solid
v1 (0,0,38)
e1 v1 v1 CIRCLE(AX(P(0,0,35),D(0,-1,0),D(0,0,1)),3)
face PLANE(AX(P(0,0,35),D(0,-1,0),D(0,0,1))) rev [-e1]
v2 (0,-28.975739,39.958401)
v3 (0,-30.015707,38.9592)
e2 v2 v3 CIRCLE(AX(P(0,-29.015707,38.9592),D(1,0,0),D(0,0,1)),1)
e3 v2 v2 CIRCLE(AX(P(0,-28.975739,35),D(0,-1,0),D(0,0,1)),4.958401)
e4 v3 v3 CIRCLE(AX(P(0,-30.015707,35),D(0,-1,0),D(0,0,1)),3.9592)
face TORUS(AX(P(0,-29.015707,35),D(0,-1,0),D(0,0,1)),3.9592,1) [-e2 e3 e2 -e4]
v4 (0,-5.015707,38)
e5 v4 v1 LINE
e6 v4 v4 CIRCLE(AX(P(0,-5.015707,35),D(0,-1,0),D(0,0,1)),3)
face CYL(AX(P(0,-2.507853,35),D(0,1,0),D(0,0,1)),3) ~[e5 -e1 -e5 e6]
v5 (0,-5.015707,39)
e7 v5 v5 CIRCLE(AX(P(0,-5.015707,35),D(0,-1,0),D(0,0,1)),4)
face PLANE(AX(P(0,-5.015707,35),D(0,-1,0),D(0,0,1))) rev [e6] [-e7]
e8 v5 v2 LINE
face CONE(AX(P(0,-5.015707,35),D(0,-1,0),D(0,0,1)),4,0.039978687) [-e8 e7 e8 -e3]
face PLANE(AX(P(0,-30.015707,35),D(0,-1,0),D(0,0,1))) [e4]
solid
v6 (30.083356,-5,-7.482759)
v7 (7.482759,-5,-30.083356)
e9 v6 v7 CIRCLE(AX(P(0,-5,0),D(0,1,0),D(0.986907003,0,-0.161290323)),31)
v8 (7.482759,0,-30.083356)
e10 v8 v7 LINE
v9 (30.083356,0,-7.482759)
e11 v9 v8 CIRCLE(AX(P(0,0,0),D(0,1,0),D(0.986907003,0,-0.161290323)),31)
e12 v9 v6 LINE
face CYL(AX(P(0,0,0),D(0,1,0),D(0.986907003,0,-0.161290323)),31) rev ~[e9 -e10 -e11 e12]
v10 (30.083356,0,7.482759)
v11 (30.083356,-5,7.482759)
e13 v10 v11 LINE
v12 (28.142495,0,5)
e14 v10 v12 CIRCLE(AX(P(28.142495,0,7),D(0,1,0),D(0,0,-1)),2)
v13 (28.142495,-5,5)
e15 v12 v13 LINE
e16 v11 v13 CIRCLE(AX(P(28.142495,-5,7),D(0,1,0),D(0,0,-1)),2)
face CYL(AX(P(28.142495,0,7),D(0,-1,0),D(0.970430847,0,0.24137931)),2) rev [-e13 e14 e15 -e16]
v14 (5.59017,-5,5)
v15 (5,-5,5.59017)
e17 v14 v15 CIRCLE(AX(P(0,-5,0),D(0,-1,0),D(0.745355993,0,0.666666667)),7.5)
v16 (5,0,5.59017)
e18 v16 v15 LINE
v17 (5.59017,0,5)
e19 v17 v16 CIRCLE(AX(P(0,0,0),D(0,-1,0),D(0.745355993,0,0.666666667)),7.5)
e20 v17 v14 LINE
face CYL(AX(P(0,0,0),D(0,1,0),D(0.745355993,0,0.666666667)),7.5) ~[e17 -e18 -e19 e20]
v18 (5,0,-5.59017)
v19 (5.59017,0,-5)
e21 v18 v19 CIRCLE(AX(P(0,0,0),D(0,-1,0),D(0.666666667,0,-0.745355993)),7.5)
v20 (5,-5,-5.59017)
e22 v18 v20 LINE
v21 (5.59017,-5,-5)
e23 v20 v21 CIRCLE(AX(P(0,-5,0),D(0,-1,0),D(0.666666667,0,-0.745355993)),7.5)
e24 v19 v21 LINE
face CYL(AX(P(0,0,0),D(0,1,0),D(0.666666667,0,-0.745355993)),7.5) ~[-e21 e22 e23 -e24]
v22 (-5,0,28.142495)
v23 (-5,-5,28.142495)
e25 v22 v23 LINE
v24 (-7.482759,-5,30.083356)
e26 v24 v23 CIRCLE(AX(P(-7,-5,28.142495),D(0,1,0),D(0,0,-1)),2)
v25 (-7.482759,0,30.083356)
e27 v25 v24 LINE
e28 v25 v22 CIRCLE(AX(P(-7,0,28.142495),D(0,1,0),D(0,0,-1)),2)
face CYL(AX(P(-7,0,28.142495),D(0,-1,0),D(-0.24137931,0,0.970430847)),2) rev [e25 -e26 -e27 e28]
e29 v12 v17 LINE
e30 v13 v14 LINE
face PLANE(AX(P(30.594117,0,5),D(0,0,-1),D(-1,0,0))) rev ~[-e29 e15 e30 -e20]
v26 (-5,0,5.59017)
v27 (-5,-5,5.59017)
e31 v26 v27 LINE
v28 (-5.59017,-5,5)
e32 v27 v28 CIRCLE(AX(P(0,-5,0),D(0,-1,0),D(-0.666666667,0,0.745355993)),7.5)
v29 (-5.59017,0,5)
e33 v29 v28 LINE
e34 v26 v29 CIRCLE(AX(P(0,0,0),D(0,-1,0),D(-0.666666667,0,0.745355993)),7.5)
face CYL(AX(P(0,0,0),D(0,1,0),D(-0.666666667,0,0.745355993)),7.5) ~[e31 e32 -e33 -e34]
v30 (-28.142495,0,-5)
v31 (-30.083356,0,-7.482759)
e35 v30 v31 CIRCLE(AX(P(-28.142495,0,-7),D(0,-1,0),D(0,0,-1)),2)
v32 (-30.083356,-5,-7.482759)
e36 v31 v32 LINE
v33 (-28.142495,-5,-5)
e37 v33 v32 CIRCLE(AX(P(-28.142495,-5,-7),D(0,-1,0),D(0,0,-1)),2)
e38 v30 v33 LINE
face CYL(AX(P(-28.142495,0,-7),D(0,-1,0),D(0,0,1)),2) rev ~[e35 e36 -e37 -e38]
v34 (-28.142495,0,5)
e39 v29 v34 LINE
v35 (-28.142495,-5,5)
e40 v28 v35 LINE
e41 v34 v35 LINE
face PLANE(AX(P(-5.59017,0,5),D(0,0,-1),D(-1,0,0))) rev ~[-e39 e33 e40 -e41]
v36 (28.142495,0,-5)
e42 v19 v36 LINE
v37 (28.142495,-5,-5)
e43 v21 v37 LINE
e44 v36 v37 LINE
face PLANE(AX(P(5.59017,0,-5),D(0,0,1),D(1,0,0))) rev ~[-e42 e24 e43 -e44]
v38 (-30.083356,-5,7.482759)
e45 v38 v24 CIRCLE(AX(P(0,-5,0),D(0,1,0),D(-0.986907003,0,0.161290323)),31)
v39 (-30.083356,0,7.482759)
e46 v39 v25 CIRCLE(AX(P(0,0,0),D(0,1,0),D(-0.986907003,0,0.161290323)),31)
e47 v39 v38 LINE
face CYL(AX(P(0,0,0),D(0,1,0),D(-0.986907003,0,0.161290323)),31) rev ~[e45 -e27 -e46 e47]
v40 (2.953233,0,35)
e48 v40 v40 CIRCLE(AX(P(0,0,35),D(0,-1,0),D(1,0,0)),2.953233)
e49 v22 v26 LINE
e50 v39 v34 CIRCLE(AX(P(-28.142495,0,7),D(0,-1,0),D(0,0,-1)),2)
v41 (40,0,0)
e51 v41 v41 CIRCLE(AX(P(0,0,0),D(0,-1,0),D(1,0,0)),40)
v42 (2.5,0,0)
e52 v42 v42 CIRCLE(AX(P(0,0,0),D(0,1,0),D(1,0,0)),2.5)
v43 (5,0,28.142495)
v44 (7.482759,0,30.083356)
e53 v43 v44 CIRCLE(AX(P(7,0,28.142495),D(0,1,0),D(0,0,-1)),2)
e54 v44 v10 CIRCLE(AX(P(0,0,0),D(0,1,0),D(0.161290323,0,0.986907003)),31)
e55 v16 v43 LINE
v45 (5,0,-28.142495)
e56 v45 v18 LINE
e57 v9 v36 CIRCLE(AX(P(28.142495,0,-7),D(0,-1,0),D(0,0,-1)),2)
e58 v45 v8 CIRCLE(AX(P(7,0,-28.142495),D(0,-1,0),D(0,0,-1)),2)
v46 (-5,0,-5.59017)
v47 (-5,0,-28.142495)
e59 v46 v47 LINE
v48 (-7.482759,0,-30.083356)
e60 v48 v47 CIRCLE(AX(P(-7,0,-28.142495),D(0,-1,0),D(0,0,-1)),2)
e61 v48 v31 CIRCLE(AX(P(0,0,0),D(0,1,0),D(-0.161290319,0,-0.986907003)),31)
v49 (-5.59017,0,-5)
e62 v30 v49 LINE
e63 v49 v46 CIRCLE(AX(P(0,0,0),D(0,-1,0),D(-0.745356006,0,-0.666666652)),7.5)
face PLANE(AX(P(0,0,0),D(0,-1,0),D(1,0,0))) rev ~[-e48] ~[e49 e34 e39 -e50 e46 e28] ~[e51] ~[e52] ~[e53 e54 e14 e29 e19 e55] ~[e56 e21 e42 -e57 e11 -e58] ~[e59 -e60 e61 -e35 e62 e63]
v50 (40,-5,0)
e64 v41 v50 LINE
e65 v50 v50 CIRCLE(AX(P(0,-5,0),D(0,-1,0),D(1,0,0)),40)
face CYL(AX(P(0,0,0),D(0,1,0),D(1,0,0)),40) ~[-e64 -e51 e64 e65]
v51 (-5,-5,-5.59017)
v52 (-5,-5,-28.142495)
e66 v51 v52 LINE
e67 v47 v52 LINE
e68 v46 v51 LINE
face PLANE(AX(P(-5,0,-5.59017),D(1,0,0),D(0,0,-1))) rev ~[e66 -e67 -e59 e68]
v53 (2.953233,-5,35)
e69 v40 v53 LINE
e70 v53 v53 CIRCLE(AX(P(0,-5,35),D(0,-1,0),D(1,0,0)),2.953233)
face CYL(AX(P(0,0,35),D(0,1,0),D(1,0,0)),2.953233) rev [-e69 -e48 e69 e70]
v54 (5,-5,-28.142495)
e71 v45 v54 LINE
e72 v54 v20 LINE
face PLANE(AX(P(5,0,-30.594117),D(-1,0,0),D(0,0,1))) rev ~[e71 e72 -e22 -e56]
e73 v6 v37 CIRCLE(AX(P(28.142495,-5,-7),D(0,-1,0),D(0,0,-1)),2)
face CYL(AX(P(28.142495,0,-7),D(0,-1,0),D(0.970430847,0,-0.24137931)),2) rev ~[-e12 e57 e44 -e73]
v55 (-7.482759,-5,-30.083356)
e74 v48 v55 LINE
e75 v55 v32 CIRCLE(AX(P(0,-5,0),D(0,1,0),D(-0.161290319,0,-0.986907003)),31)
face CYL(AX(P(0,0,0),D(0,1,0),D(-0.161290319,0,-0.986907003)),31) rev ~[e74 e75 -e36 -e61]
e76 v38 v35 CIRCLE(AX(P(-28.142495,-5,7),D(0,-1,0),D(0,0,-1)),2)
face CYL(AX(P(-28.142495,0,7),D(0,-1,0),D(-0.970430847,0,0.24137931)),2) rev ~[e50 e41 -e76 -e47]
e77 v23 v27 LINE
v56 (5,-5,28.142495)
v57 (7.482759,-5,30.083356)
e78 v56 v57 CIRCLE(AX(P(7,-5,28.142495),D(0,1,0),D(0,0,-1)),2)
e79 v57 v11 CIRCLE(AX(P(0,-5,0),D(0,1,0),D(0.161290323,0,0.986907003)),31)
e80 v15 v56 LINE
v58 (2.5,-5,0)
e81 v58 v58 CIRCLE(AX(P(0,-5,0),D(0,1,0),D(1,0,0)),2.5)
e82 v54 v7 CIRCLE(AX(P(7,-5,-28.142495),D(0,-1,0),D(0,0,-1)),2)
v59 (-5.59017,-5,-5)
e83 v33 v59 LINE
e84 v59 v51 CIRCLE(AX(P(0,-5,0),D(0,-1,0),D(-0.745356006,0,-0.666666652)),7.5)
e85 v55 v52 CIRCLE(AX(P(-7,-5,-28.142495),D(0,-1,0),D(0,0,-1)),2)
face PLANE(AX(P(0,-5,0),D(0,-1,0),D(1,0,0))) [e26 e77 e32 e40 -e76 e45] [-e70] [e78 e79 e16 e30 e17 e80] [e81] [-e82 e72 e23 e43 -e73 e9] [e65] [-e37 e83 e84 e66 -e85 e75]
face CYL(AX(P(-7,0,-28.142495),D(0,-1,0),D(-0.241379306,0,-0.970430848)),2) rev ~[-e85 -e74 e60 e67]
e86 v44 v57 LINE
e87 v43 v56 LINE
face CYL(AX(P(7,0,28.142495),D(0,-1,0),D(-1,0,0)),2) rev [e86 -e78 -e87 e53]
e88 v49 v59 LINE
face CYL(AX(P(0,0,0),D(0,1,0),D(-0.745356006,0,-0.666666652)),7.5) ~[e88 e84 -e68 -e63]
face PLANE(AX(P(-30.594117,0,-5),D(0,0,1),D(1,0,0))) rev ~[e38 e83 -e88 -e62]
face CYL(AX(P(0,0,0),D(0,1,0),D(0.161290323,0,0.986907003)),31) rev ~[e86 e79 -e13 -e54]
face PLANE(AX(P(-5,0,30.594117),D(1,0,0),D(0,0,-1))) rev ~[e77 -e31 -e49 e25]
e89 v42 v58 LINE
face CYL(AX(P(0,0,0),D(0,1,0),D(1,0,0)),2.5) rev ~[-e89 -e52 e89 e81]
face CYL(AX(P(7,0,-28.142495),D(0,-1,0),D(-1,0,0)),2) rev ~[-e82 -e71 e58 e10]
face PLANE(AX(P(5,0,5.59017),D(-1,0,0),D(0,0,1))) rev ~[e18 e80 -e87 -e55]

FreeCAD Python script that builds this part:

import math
import FreeCAD as App
import Part
import Sketcher
Q = App.Units.Quantity


def edges_at(feature, points):
    """Names of the edges that pass closest to the given points."""
    edges = feature.Shape.Edges
    near = lambda p: min(range(len(edges)), key=lambda i: edges[i].distToShape(Part.Vertex(*p))[0])
    return sorted({f"Edge{near(p) + 1}" for p in points})


def add_polygon(sketch, points):
    """Adds a closed chain of lines whose ends are joined by coincident constraints."""
    first, n = sketch.GeometryCount, len(points)
    for a, b in zip(points, points[1:] + points[:1]):
        sketch.addGeometry(Part.LineSegment(App.Vector(*a, 0), App.Vector(*b, 0)), False)
    for i in range(n):
        sketch.addConstraint(Sketcher.Constraint("Coincident", first + i, 2, first + (i + 1) % n, 1))

doc = App.newDocument("Part")
body = doc.addObject("PartDesign::Body", "Body")

sketch1 = body.newObject("Sketcher::SketchObject", "Sketch")
sketch1.AttachmentSupport = (doc.getObject("YZ_Plane"), [""])
sketch1.MapMode = "FlatFace"
add_polygon(sketch1, [(0, 35), (0, 38), (-5, 38), (-5, 39), (-30, 40), (-30, 35)])
sketch1.addGeometry(Part.LineSegment(App.Vector(0, 35, 0), App.Vector(-30, 35, 0)), True)
sketch1.addConstraint([
    Sketcher.Constraint("Vertical", 0),
    Sketcher.Constraint("Horizontal", 1),
    Sketcher.Constraint("Vertical", 2),
    Sketcher.Constraint("Vertical", 4),
    Sketcher.Constraint("Horizontal", 5),
    Sketcher.Constraint("Horizontal", 6),
    Sketcher.Constraint("Coincident", 6, 1, 5, 2),
    Sketcher.Constraint("PointOnObject", 0, 2, -2),
    Sketcher.Constraint("Vertical", 3, 2, 6, 2),
    Sketcher.Constraint("DistanceY", 0, 1, 0, 2, Q("3 mm")),
    Sketcher.Constraint("DistanceY", 2, 1, 2, 2, Q("1 mm")),
    Sketcher.Constraint("DistanceY", 4, 2, 4, 1, Q("5 mm")),
    Sketcher.Constraint("DistanceY", -1, 1, 0, 2, Q("38 mm")),
    Sketcher.Constraint("DistanceX", 3, 2, 2, 2, Q("25 mm")),
    Sketcher.Constraint("DistanceX", 1, 2, 1, 1, Q("5.015707 mm")),
])
revolution = body.newObject("PartDesign::Revolution", "Revolution")
revolution.Profile = sketch1
revolution.ReferenceAxis = (sketch1, ["Axis0"])
revolution.Angle = 360
doc.recompute()

fillet = body.newObject("PartDesign::Fillet", "Fillet")
fillet.Base = (revolution, edges_at(revolution, [(0, -30.016, 30)]))
fillet.Radius = 1
body2 = doc.addObject("PartDesign::Body", "Body001")

sketch2 = body2.newObject("Sketcher::SketchObject", "Sketch001")
sketch2.AttachmentSupport = (doc.getObject("XZ_Plane001"), [""])
sketch2.MapMode = "FlatFace"
sketch2.addGeometry([
    Part.Circle(App.Vector(0, 0, 0), App.Vector(0, 0, 1), 40),
    Part.LineSegment(App.Vector(-30.6, -5, 0), App.Vector(-5.6, -5, 0)),
    Part.ArcOfCircle(Part.Circle(App.Vector(0, 0, 0), App.Vector(0, 0, 1), 7.5), math.radians(-138.19), math.radians(-131.81)),
    Part.LineSegment(App.Vector(-5, -5.6, 0), App.Vector(-5, -30.6, 0)),
    Part.ArcOfCircle(Part.Circle(App.Vector(0, 0, 0), App.Vector(0, 0, 1), 31), math.radians(-171), math.radians(-99)),
    Part.LineSegment(App.Vector(5, -30.6, 0), App.Vector(5, -5.6, 0)),
    Part.ArcOfCircle(Part.Circle(App.Vector(0, 0, 0), App.Vector(0, 0, 1), 7.5), math.radians(-48.19), math.radians(-41.81)),
    Part.LineSegment(App.Vector(5.6, -5, 0), App.Vector(30.6, -5, 0)),
    Part.ArcOfCircle(Part.Circle(App.Vector(0, 0, 0), App.Vector(0, 0, 1), 31), math.radians(-81), math.radians(-9)),
    Part.Circle(App.Vector(0, 0, 0), App.Vector(0, 0, 1), 2.5),
    Part.ArcOfCircle(Part.Circle(App.Vector(0, 0, 0), App.Vector(0, 0, 1), 31), math.radians(99), math.radians(171)),
    Part.LineSegment(App.Vector(-5, 30.6, 0), App.Vector(-5, 5.6, 0)),
    Part.ArcOfCircle(Part.Circle(App.Vector(0, 0, 0), App.Vector(0, 0, 1), 7.5), math.radians(131.81), math.radians(138.19)),
    Part.LineSegment(App.Vector(-5.6, 5, 0), App.Vector(-30.6, 5, 0)),
    Part.LineSegment(App.Vector(5, 5.6, 0), App.Vector(5, 30.6, 0)),
    Part.ArcOfCircle(Part.Circle(App.Vector(0, 0, 0), App.Vector(0, 0, 1), 31), math.radians(9), math.radians(81)),
    Part.LineSegment(App.Vector(30.6, 5, 0), App.Vector(5.6, 5, 0)),
    Part.ArcOfCircle(Part.Circle(App.Vector(0, 0, 0), App.Vector(0, 0, 1), 7.5), math.radians(41.81), math.radians(48.19)),
    Part.Circle(App.Vector(0, 35, 0), App.Vector(0, 0, 1), 3),
], False)
sketch2.addConstraint([
    Sketcher.Constraint("Coincident", 1, 2, 2, 1),
    Sketcher.Constraint("Coincident", 2, 2, 3, 1),
    Sketcher.Constraint("Coincident", 3, 2, 4, 2),
    Sketcher.Constraint("Coincident", 4, 1, 1, 1),
    Sketcher.Constraint("Coincident", 5, 2, 6, 1),
    Sketcher.Constraint("Coincident", 6, 2, 7, 1),
    Sketcher.Constraint("Coincident", 7, 2, 8, 2),
    Sketcher.Constraint("Coincident", 8, 1, 5, 1),
    Sketcher.Constraint("Coincident", 10, 1, 11, 1),
    Sketcher.Constraint("Coincident", 11, 2, 12, 1),
    Sketcher.Constraint("Coincident", 12, 2, 13, 1),
    Sketcher.Constraint("Coincident", 13, 2, 10, 2),
    Sketcher.Constraint("Coincident", 14, 2, 15, 2),
    Sketcher.Constraint("Coincident", 15, 1, 16, 1),
    Sketcher.Constraint("Coincident", 16, 2, 17, 1),
    Sketcher.Constraint("Coincident", 17, 2, 14, 1),
    Sketcher.Constraint("Horizontal", 1),
    Sketcher.Constraint("Vertical", 3),
    Sketcher.Constraint("Vertical", 5),
    Sketcher.Constraint("Horizontal", 7),
    Sketcher.Constraint("Vertical", 11),
    Sketcher.Constraint("Horizontal", 13),
    Sketcher.Constraint("Vertical", 14),
    Sketcher.Constraint("Horizontal", 16),
    Sketcher.Constraint("Coincident", 0, 3, -1, 1),
    Sketcher.Constraint("Coincident", 2, 3, -1, 1),
    Sketcher.Constraint("Coincident", 4, 3, -1, 1),
    Sketcher.Constraint("Coincident", 6, 3, -1, 1),
    Sketcher.Constraint("Coincident", 8, 3, -1, 1),
    Sketcher.Constraint("Coincident", 9, 3, -1, 1),
    Sketcher.Constraint("Coincident", 10, 3, -1, 1),
    Sketcher.Constraint("Coincident", 12, 3, -1, 1),
    Sketcher.Constraint("Coincident", 15, 3, -1, 1),
    Sketcher.Constraint("Coincident", 17, 3, -1, 1),
    Sketcher.Constraint("Equal", 2, 6),
    Sketcher.Constraint("Equal", 4, 8),
    Sketcher.Constraint("Equal", 8, 10),
    Sketcher.Constraint("Equal", 6, 12),
    Sketcher.Constraint("Equal", 10, 15),
    Sketcher.Constraint("Equal", 12, 17),
    Sketcher.Constraint("PointOnObject", 18, 3, -2),
    Sketcher.Constraint("Horizontal", 2, 2, 5, 2),
    Sketcher.Constraint("Horizontal", 4, 1, 6, 2),
    Sketcher.Constraint("Horizontal", 10, 1, 14, 2),
    Sketcher.Constraint("Horizontal", 13, 2, 15, 1),
    Sketcher.Constraint("Vertical", 3, 2, 10, 1),
    Sketcher.Constraint("Vertical", 1, 2, 12, 2),
    Sketcher.Constraint("Equal", 16, 3),
    Sketcher.Constraint("Diameter", 0, Q("80 mm")),
    Sketcher.Constraint("Diameter", 9, Q("5 mm")),
    Sketcher.Constraint("Radius", 4, Q("31 mm")),
    Sketcher.Constraint("Radius", 2, Q("7.5 mm")),
    Sketcher.Constraint("DistanceY", -1, 1, 18, 3, Q("35 mm")),
    Sketcher.Constraint("DistanceY", 1, 2, -1, 1, Q("5 mm")),
    Sketcher.Constraint("Diameter", 18, Q("5.906466 mm")),
])
pad1 = body2.newObject("PartDesign::Pad", "Pad")
pad1.Profile = sketch2
pad1.Length = 5
doc.recompute()

fillet2 = body2.newObject("PartDesign::Fillet", "Fillet001")
fillet2.Base = (pad1, edges_at(pad1, [
    (5, -2.5, 30.594),
    (-5, -2.5, 30.594),
    (-30.594, -2.5, 5),
    (-30.594, -2.5, -5),
    (-5, -2.5, -30.594),
    (5, -2.5, -30.594),
    (30.594, -2.5, -5),
    (30.594, -2.5, 5),
]))
fillet2.Radius = 2

doc.recompute()
